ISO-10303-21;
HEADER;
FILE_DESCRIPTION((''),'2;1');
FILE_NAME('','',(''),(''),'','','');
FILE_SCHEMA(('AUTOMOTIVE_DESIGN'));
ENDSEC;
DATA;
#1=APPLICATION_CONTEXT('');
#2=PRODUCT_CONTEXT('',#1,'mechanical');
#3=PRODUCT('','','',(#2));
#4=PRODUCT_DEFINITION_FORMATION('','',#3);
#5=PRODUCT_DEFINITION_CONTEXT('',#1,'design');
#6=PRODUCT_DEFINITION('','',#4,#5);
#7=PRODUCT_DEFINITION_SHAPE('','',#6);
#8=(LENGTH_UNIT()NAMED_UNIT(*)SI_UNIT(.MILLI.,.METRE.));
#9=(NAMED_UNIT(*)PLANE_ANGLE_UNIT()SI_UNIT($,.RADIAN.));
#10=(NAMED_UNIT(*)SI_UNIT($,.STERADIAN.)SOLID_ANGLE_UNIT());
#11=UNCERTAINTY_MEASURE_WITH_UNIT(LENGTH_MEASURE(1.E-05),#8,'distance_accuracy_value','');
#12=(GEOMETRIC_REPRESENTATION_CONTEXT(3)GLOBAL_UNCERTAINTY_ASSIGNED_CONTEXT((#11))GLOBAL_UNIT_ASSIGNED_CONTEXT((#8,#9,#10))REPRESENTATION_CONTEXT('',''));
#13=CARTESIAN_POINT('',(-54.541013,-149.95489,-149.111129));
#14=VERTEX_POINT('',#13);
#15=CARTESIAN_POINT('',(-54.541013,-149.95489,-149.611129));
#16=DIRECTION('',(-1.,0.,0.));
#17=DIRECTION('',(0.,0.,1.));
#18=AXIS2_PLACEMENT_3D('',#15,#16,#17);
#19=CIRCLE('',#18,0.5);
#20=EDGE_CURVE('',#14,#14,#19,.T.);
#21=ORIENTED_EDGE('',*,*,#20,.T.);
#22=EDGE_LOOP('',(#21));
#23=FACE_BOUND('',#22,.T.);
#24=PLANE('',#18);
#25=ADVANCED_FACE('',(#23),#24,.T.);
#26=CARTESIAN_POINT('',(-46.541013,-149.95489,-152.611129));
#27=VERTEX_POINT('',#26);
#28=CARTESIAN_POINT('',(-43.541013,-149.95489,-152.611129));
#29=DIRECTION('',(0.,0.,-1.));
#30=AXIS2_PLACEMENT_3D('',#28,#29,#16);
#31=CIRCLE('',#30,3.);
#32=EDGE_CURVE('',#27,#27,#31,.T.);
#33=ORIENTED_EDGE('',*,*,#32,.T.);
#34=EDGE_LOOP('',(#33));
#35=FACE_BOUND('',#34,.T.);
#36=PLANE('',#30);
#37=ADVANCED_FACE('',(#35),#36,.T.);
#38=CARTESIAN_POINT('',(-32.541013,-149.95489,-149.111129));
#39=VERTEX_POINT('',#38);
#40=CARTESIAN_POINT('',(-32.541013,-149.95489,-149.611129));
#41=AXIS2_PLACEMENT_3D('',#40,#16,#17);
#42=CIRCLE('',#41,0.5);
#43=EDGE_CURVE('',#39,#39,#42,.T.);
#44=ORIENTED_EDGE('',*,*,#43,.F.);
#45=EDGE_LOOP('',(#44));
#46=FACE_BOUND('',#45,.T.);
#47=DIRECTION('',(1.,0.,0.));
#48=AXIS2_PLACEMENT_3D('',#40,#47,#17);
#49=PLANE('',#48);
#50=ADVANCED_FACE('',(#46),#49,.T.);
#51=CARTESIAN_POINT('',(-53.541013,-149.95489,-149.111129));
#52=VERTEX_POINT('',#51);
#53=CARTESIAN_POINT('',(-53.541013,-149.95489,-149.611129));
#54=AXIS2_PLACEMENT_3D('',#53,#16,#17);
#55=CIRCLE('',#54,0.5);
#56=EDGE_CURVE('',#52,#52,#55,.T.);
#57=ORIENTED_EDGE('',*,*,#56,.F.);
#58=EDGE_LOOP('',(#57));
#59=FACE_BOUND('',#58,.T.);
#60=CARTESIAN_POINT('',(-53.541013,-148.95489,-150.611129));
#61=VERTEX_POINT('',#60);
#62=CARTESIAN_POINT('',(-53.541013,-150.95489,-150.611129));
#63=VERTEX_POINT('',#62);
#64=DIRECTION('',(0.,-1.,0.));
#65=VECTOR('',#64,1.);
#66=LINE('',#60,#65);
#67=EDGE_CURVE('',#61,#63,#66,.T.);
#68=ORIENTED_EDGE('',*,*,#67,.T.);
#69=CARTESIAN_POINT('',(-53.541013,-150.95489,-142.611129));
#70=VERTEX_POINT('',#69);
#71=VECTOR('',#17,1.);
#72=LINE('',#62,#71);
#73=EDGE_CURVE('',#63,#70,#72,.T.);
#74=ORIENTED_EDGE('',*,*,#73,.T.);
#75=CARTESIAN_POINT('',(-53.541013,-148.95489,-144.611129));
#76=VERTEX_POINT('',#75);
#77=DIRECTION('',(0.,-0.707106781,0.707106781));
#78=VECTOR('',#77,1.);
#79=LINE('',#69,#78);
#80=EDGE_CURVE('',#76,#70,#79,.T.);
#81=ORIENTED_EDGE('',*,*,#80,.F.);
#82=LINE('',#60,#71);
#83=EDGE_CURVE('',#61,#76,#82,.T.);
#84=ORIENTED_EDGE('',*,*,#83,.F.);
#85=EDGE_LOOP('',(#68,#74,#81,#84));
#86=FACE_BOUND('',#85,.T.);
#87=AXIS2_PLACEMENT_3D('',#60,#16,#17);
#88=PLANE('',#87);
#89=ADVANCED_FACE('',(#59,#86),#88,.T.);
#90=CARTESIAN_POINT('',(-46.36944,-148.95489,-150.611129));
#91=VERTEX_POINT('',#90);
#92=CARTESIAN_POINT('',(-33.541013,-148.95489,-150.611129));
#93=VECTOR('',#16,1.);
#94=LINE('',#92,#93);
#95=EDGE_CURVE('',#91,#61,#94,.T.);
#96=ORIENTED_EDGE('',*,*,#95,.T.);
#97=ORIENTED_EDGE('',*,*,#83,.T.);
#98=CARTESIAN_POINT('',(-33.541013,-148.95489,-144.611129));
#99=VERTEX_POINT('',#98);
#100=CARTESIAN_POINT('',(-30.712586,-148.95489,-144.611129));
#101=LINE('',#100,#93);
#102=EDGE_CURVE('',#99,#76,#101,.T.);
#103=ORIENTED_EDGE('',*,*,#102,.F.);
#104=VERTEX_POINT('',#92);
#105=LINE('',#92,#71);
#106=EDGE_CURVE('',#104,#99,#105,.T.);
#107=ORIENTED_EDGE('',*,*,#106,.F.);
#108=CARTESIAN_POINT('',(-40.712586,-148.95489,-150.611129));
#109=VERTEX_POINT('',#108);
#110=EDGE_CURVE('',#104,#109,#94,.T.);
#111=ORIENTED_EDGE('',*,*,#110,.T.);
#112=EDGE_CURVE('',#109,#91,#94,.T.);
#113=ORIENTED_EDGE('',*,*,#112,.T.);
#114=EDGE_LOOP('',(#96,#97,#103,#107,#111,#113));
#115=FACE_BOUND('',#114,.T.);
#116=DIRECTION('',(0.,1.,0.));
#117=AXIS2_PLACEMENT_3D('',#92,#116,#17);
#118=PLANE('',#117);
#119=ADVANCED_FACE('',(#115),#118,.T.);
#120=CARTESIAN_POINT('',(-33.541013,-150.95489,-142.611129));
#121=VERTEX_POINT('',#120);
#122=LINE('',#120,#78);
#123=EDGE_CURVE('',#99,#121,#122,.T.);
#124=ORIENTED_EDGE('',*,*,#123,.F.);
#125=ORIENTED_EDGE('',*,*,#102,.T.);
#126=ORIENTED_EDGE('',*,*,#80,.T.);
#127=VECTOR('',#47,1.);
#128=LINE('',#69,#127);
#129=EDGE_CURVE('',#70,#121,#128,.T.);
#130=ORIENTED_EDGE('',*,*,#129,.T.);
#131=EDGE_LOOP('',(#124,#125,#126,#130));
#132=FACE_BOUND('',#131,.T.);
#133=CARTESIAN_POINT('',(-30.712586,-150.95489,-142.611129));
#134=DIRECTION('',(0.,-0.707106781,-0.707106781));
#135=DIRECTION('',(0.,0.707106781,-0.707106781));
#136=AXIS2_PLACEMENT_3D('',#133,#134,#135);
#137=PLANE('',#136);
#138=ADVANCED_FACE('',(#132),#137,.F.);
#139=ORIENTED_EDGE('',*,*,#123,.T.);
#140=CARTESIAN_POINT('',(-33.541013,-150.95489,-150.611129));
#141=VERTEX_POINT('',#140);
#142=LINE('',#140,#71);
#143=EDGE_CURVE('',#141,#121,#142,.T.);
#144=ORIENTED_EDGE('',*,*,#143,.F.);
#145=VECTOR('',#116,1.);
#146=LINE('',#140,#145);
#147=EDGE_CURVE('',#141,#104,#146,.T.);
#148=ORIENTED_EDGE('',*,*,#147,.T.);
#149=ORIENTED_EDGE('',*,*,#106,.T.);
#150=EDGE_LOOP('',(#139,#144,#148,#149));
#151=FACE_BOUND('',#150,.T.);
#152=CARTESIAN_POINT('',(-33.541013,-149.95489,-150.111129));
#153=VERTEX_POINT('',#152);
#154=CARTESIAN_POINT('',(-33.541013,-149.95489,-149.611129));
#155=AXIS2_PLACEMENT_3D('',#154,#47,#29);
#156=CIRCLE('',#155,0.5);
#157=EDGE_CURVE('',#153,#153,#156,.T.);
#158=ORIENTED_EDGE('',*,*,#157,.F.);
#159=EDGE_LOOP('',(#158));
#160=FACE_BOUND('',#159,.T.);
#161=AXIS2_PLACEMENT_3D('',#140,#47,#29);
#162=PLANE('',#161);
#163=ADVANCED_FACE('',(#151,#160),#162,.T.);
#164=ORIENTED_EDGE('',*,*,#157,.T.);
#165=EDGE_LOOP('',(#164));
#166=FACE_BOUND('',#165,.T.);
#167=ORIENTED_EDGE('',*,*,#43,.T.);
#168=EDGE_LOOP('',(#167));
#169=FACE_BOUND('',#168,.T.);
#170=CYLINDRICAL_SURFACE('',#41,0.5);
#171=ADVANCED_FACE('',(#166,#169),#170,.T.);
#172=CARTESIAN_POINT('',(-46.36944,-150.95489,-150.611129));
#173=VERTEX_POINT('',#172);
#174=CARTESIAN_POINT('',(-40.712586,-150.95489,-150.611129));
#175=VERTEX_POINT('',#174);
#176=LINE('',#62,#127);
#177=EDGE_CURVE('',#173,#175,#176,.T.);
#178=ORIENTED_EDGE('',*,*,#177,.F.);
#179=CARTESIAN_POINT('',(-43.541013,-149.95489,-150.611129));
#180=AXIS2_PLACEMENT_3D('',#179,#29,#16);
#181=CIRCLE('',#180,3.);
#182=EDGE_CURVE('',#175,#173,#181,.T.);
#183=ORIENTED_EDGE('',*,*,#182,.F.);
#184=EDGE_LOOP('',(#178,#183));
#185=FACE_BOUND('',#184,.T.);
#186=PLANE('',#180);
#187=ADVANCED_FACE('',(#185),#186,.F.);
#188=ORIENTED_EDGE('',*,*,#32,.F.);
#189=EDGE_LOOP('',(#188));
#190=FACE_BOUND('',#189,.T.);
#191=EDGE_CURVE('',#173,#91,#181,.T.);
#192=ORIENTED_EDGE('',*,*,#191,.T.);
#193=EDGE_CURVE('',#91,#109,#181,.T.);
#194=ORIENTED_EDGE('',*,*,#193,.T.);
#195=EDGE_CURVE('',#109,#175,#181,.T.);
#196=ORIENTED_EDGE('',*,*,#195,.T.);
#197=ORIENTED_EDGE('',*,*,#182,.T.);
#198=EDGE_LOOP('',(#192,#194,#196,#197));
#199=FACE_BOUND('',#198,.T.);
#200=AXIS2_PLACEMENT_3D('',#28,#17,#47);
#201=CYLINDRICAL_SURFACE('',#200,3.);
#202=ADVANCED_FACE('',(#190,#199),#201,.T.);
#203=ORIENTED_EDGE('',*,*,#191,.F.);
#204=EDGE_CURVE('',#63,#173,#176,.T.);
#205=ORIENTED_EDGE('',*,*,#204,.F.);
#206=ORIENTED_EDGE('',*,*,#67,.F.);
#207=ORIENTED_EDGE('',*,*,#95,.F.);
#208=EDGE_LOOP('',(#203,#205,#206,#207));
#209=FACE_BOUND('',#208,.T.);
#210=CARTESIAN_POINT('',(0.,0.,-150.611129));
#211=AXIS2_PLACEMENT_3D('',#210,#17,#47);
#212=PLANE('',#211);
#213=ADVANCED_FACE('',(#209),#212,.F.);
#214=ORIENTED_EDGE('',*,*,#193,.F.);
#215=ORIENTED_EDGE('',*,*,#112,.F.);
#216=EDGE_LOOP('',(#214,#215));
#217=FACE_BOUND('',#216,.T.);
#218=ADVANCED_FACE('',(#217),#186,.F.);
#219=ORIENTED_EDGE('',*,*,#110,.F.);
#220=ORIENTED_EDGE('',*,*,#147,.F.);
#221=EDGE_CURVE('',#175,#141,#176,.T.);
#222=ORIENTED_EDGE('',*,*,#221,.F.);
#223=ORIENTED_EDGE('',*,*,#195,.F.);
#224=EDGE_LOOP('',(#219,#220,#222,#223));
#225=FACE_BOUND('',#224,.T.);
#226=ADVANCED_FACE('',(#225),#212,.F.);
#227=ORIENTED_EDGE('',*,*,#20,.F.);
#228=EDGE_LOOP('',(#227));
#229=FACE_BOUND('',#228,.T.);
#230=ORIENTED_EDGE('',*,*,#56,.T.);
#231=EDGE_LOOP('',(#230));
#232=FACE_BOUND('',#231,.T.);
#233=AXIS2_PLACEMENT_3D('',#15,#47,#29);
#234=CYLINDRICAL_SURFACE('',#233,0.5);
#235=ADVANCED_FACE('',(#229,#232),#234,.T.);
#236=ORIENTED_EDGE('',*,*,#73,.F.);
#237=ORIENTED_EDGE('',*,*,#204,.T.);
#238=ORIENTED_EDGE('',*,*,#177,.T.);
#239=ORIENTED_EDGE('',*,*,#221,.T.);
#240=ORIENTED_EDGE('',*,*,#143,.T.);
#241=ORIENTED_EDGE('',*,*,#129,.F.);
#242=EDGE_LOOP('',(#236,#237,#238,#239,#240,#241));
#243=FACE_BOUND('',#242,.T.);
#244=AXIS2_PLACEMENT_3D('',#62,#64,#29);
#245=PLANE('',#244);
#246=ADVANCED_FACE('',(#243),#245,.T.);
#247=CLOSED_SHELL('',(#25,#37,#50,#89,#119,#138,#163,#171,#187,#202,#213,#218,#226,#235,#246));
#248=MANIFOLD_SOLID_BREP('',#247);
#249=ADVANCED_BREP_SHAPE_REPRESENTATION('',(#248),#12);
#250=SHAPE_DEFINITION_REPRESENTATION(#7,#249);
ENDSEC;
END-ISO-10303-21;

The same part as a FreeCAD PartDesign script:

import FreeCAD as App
import Part
import Sketcher
Q = App.Units.Quantity


def add_polygon(sketch, points):
    """Adds a closed chain of lines whose ends are joined by coincident constraints."""
    first, n = sketch.GeometryCount, len(points)
    for a, b in zip(points, points[1:] + points[:1]):
        sketch.addGeometry(Part.LineSegment(App.Vector(*a, 0), App.Vector(*b, 0)), False)
    for i in range(n):
        sketch.addConstraint(Sketcher.Constraint("Coincident", first + i, 2, first + (i + 1) % n, 1))

doc = App.newDocument("Part")
body = doc.addObject("PartDesign::Body", "Body")

# Sketch on XY plane
sketch1 = doc.addObject("Sketcher::SketchObject", "Sketch")
body.addObject(sketch1)
sketch1.AttachmentSupport = (doc.XY_Plane, [""])
sketch1.MapMode = "FlatFace"
sketch1.AttachmentOffset = App.Placement(App.Vector(0, 0, -146.611129), App.Rotation())
add_polygon(sketch1, [(-53.5, -149), (-53.5, -151), (-33.5, -151), (-33.5, -149)])  # lines 0-3
sketch1.addConstraint(Sketcher.Constraint("Vertical", 0))
sketch1.addConstraint(Sketcher.Constraint("Horizontal", 1))
sketch1.addConstraint(Sketcher.Constraint("Vertical", 2))
sketch1.addConstraint(Sketcher.Constraint("Horizontal", 3))
sketch1.addConstraint(Sketcher.Constraint("DistanceX", 1, 1, 1, 2, Q("20 mm")))
sketch1.addConstraint(Sketcher.Constraint("DistanceY", 0, 2, 0, 1, Q("2 mm")))
sketch1.addConstraint(Sketcher.Constraint("DistanceY", 0, 2, -1, 1, Q("150.95489 mm")))
sketch1.addConstraint(Sketcher.Constraint("DistanceX", 0, 2, -1, 1, Q("53.541013 mm")))
pad1 = doc.addObject("PartDesign::Pad", "Pad")
body.addObject(pad1)
pad1.Profile = sketch1
pad1.Type = "TwoLengths"
pad1.Length = 4
pad1.Length2 = 4

# Sketch on YZ plane
sketch2 = doc.addObject("Sketcher::SketchObject", "Sketch001")
body.addObject(sketch2)
sketch2.AttachmentSupport = (doc.YZ_Plane, [""])
sketch2.MapMode = "FlatFace"
sketch2.AttachmentOffset = App.Placement(App.Vector(0, 0, -53.541013), App.Rotation())
add_polygon(sketch2, [(-151, -142.6), (-149, -142.6), (-149, -144.6)])  # lines 0-2
sketch2.addConstraint(Sketcher.Constraint("Horizontal", 0))
sketch2.addConstraint(Sketcher.Constraint("Vertical", 1))
sketch2.addConstraint(Sketcher.Constraint("Equal", 0, 1))
sketch2.addConstraint(Sketcher.Constraint("DistanceX", 0, 1, 0, 2, Q("2 mm")))
sketch2.addConstraint(Sketcher.Constraint("DistanceX", 0, 2, -1, 1, Q("148.95489 mm")))
sketch2.addConstraint(Sketcher.Constraint("DistanceY", 0, 2, -1, 1, Q("142.611129 mm")))
pocket1 = doc.addObject("PartDesign::Pocket", "Pocket")
body.addObject(pocket1)
pocket1.Profile = sketch2
pocket1.Length = 20
pocket1.Reversed = True

# Sketch on YZ plane
sketch3 = doc.addObject("Sketcher::SketchObject", "Sketch002")
body.addObject(sketch3)
sketch3.AttachmentSupport = (doc.YZ_Plane, [""])
sketch3.MapMode = "FlatFace"
sketch3.AttachmentOffset = App.Placement(App.Vector(0, 0, -53.541013), App.Rotation())
sketch3.addGeometry(Part.Circle(App.Vector(-150, -149.6, 0), App.Vector(0, 0, 1), 0.5), False)
sketch3.addConstraint(Sketcher.Constraint("Diameter", 0, Q("1 mm")))
sketch3.addConstraint(Sketcher.Constraint("DistanceX", 0, 3, -1, 1, Q("149.95489 mm")))
sketch3.addConstraint(Sketcher.Constraint("DistanceY", 0, 3, -1, 1, Q("149.611129 mm")))
pad2 = doc.addObject("PartDesign::Pad", "Pad001")
body.addObject(pad2)
pad2.Profile = sketch3
pad2.Length = 1
pad2.Reversed = True
doc.recompute()

datumplane = doc.addObject("PartDesign::Plane", "DatumPlane")
body.addObject(datumplane)
datumplane.AttachmentSupport = (doc.YZ_Plane, [""])
datumplane.MapMode = "FlatFace"
datumplane.AttachmentOffset = App.Placement(App.Vector(0, 0, -43.541013), App.Rotation())
mirrored = doc.addObject("PartDesign::Mirrored", "Mirrored")
body.addObject(mirrored)
mirrored.Originals = [pad2]
mirrored.MirrorPlane = (datumplane, [""])
body.Tip = mirrored

# Sketch on XY plane
sketch4 = doc.addObject("Sketcher::SketchObject", "Sketch003")
body.addObject(sketch4)
sketch4.AttachmentSupport = (doc.XY_Plane, [""])
sketch4.MapMode = "FlatFace"
sketch4.AttachmentOffset = App.Placement(App.Vector(0, 0, -150.611129), App.Rotation())
sketch4.addGeometry(Part.Circle(App.Vector(-43.5, -150, 0), App.Vector(0, 0, 1), 3), False)
sketch4.addConstraint(Sketcher.Constraint("Diameter", 0, Q("6 mm")))
sketch4.addConstraint(Sketcher.Constraint("DistanceY", 0, 3, -1, 1, Q("149.95489 mm")))
sketch4.addConstraint(Sketcher.Constraint("DistanceX", 0, 3, -1, 1, Q("43.541013 mm")))
pad3 = doc.addObject("PartDesign::Pad", "Pad002")
body.addObject(pad3)
pad3.Profile = sketch4
pad3.Length = 2
pad3.Reversed = True

doc.recompute()
